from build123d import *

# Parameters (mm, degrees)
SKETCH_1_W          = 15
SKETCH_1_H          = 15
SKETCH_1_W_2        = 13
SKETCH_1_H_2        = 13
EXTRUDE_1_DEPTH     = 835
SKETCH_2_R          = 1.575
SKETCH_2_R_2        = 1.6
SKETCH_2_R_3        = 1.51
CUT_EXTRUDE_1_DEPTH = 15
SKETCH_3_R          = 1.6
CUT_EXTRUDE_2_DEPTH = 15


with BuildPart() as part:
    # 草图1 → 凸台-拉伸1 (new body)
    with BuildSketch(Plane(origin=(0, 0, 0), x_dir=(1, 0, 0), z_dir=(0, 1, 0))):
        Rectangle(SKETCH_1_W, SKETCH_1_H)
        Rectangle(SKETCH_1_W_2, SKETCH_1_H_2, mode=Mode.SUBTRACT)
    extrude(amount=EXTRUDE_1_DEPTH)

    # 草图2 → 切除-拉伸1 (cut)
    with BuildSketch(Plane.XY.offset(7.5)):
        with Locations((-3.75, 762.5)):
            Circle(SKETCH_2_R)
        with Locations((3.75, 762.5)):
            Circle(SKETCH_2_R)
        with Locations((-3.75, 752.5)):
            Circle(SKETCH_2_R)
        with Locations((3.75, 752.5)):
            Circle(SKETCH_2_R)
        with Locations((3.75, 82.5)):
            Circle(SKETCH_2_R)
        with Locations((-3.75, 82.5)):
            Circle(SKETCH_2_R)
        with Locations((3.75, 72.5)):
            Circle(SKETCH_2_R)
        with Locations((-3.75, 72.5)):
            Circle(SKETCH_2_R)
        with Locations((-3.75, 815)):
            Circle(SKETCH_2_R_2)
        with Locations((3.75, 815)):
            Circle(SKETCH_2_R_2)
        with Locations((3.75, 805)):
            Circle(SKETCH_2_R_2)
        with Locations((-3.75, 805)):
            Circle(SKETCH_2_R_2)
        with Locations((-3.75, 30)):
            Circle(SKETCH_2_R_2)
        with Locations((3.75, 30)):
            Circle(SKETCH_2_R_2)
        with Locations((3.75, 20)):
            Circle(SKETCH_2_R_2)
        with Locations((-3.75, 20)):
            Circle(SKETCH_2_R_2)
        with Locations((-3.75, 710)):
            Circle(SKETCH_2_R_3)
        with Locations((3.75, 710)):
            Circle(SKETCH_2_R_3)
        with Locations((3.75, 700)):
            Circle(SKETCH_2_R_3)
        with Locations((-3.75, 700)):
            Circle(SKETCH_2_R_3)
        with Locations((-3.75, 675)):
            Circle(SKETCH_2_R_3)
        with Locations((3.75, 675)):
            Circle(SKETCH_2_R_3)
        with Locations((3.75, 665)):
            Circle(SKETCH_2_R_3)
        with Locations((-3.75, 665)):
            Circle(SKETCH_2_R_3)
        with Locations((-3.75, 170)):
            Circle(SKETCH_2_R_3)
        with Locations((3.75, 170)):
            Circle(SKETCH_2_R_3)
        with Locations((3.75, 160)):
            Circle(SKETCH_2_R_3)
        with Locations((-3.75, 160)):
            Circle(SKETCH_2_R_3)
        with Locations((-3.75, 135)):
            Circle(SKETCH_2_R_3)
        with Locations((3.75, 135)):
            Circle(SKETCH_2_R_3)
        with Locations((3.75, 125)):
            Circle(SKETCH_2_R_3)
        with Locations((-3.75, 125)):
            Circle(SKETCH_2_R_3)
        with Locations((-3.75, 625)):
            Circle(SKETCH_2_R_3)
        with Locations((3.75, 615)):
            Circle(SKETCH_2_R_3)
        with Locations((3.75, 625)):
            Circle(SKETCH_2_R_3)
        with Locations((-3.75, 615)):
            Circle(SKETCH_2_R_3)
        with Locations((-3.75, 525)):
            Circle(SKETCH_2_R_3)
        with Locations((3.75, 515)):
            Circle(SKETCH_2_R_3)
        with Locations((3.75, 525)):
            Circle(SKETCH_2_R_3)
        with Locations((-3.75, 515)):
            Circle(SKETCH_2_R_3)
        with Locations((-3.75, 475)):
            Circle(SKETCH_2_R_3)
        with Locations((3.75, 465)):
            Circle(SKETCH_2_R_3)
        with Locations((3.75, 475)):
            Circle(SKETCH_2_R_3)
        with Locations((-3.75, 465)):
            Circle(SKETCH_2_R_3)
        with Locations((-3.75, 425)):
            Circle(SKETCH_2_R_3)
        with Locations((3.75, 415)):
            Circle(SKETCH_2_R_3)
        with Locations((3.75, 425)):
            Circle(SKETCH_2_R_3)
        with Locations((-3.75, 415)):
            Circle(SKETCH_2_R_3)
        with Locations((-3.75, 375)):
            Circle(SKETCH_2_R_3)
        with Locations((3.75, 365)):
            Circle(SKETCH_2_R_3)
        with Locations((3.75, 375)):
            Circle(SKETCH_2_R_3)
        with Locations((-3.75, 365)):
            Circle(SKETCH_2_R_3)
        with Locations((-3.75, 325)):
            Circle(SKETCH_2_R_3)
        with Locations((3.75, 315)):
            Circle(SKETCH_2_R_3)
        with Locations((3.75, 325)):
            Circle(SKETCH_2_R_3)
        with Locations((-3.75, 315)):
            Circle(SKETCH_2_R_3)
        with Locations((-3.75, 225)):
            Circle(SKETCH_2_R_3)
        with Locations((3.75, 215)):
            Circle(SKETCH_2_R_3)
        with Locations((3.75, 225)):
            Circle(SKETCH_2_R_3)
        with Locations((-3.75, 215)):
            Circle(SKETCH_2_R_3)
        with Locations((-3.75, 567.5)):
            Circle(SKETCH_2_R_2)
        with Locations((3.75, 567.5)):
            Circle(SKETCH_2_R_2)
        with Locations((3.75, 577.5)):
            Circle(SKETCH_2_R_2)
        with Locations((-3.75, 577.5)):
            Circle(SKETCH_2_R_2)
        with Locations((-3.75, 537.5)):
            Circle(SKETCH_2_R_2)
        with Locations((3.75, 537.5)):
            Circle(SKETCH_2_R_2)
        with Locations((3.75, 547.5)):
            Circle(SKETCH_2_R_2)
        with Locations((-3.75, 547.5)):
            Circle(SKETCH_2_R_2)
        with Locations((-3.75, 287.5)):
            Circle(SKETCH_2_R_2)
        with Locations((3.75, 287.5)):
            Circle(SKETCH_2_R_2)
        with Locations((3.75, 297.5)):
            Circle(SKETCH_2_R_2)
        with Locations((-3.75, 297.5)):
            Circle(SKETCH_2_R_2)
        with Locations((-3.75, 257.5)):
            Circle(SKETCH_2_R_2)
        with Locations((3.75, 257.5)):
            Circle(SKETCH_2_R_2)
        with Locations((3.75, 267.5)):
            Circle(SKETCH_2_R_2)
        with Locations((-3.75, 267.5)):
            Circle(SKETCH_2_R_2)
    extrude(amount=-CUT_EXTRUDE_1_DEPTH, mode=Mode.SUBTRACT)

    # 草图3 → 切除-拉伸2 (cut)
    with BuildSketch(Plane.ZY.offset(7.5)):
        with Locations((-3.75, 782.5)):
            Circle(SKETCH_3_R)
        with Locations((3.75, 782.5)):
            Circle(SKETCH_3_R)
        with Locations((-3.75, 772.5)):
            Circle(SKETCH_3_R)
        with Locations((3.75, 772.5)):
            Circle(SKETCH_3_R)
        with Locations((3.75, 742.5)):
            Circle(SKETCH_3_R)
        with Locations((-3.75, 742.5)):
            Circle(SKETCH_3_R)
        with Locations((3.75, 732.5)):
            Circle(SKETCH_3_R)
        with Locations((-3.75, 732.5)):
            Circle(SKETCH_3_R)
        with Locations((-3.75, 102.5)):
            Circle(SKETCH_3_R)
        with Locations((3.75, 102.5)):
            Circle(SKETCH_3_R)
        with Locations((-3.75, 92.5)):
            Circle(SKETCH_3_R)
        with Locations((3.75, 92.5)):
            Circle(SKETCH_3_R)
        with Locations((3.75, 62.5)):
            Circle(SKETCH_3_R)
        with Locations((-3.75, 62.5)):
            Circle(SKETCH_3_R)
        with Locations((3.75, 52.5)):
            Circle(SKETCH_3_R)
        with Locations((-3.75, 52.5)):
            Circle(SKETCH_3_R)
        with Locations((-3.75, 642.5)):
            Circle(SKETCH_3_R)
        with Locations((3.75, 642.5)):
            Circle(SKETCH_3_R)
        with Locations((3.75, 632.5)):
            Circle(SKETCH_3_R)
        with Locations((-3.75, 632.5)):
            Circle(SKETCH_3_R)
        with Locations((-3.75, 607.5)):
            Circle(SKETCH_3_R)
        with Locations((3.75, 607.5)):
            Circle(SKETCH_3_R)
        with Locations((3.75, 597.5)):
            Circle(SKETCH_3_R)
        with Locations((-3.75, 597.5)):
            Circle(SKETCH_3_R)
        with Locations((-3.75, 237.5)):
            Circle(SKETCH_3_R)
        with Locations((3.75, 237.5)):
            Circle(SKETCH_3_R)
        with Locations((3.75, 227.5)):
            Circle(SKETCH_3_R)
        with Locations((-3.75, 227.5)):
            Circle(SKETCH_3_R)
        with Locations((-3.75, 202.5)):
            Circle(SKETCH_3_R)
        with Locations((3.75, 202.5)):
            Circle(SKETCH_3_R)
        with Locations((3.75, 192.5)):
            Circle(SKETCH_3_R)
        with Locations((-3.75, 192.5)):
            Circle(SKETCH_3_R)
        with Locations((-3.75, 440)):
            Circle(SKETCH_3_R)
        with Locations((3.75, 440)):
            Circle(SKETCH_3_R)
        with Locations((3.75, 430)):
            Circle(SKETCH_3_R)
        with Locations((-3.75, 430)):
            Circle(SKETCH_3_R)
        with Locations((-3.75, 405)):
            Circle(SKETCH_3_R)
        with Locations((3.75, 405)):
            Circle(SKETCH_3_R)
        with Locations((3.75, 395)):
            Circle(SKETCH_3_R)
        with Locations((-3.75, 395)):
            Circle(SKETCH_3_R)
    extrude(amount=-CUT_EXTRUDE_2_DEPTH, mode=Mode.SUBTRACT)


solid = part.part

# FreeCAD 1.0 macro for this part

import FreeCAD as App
import Part
import Sketcher

V = App.Vector

doc = App.newDocument("Part")
body = doc.addObject("PartDesign::Body", "Body")

sketch1 = doc.addObject("Sketcher::SketchObject", "Sketch")
body.addObject(sketch1)
sketch1.AttachmentSupport = (doc.XZ_Plane, [""])
sketch1.MapMode = "FlatFace"
sketch1.addGeometry([
    Part.LineSegment(V(-8, -8, 0), V(-8, 8, 0)),
    Part.LineSegment(V(-8, 8, 0), V(8, 8, 0)),
    Part.LineSegment(V(8, 8, 0), V(8, -8, 0)),
    Part.LineSegment(V(8, -8, 0), V(-8, -8, 0)),
    Part.LineSegment(V(6, 6, 0), V(-6, 6, 0)),
    Part.LineSegment(V(-6, 6, 0), V(-6, -6, 0)),
    Part.LineSegment(V(-6, -6, 0), V(6, -6, 0)),
    Part.LineSegment(V(6, -6, 0), V(6, 6, 0)),
], False)
sketch1.addConstraint([
    Sketcher.Constraint("Coincident", 0, 2, 1, 1),
    Sketcher.Constraint("Coincident", 1, 2, 2, 1),
    Sketcher.Constraint("Coincident", 2, 2, 3, 1),
    Sketcher.Constraint("Coincident", 3, 2, 0, 1),
    Sketcher.Constraint("Coincident", 4, 2, 5, 1),
    Sketcher.Constraint("Coincident", 5, 2, 6, 1),
    Sketcher.Constraint("Coincident", 6, 2, 7, 1),
    Sketcher.Constraint("Coincident", 7, 2, 4, 1),
    Sketcher.Constraint("Vertical", 0),
    Sketcher.Constraint("Horizontal", 1),
    Sketcher.Constraint("Vertical", 2),
    Sketcher.Constraint("Horizontal", 3),
    Sketcher.Constraint("Horizontal", 4),
    Sketcher.Constraint("Vertical", 5),
    Sketcher.Constraint("Horizontal", 6),
    Sketcher.Constraint("Vertical", 7),
    Sketcher.Constraint("Symmetric", 0, 2, 2, 2, -1, 1),
    Sketcher.Constraint("Symmetric", 4, 2, 6, 2, -1, 1),
    Sketcher.Constraint("Equal", 3, 0),
    Sketcher.Constraint("Equal", 6, 5),
    Sketcher.Constraint("DistanceX", 1, 1, 1, 2, 15.0),
    Sketcher.Constraint("DistanceX", 4, 2, 4, 1, 13.0),
])
pad1 = doc.addObject("PartDesign::Pad", "Pad")
body.addObject(pad1)
pad1.Profile = sketch1
pad1.Length = 835
pad1.Reversed = True

sketch2 = doc.addObject("Sketcher::SketchObject", "Sketch001")
body.addObject(sketch2)
sketch2.AttachmentSupport = (doc.XY_Plane, [""])
sketch2.MapMode = "FlatFace"
sketch2.AttachmentOffset = App.Placement(V(0, 0, 7.5), App.Rotation())
sketch2.addGeometry([
    Part.Circle(V(-3.8, 762.5, 0), V(0, 0, 1), 1.6),
    Part.Circle(V(3.8, 762.5, 0), V(0, 0, 1), 1.6),
    Part.Circle(V(-3.8, 752.5, 0), V(0, 0, 1), 1.6),
    Part.Circle(V(3.8, 752.5, 0), V(0, 0, 1), 1.6),
    Part.Circle(V(3.8, 82.5, 0), V(0, 0, 1), 1.6),
    Part.Circle(V(-3.8, 82.5, 0), V(0, 0, 1), 1.6),
    Part.Circle(V(3.8, 72.5, 0), V(0, 0, 1), 1.6),
    Part.Circle(V(-3.8, 72.5, 0), V(0, 0, 1), 1.6),
    Part.Circle(V(-3.8, 815, 0), V(0, 0, 1), 1.6),
    Part.Circle(V(3.8, 815, 0), V(0, 0, 1), 1.6),
    Part.Circle(V(3.8, 805, 0), V(0, 0, 1), 1.6),
    Part.Circle(V(-3.8, 805, 0), V(0, 0, 1), 1.6),
    Part.Circle(V(-3.8, 30, 0), V(0, 0, 1), 1.6),
    Part.Circle(V(3.8, 30, 0), V(0, 0, 1), 1.6),
    Part.Circle(V(3.8, 20, 0), V(0, 0, 1), 1.6),
    Part.Circle(V(-3.8, 20, 0), V(0, 0, 1), 1.6),
    Part.Circle(V(-3.8, 710, 0), V(0, 0, 1), 1.5),
    Part.Circle(V(3.8, 710, 0), V(0, 0, 1), 1.5),
    Part.Circle(V(3.8, 700, 0), V(0, 0, 1), 1.5),
    Part.Circle(V(-3.8, 700, 0), V(0, 0, 1), 1.5),
    Part.Circle(V(-3.8, 675, 0), V(0, 0, 1), 1.5),
    Part.Circle(V(3.8, 675, 0), V(0, 0, 1), 1.5),
    Part.Circle(V(3.8, 665, 0), V(0, 0, 1), 1.5),
    Part.Circle(V(-3.8, 665, 0), V(0, 0, 1), 1.5),
    Part.Circle(V(-3.8, 170, 0), V(0, 0, 1), 1.5),
    Part.Circle(V(3.8, 170, 0), V(0, 0, 1), 1.5),
    Part.Circle(V(3.8, 160, 0), V(0, 0, 1), 1.5),
    Part.Circle(V(-3.8, 160, 0), V(0, 0, 1), 1.5),
    Part.Circle(V(-3.8, 135, 0), V(0, 0, 1), 1.5),
    Part.Circle(V(3.8, 135, 0), V(0, 0, 1), 1.5),
    Part.Circle(V(3.8, 125, 0), V(0, 0, 1), 1.5),
    Part.Circle(V(-3.8, 125, 0), V(0, 0, 1), 1.5),
    Part.Circle(V(-3.8, 625, 0), V(0, 0, 1), 1.5),
    Part.Circle(V(3.8, 615, 0), V(0, 0, 1), 1.5),
    Part.Circle(V(3.8, 625, 0), V(0, 0, 1), 1.5),
    Part.Circle(V(-3.8, 615, 0), V(0, 0, 1), 1.5),
    Part.Circle(V(-3.8, 525, 0), V(0, 0, 1), 1.5),
    Part.Circle(V(3.8, 515, 0), V(0, 0, 1), 1.5),
    Part.Circle(V(3.8, 525, 0), V(0, 0, 1), 1.5),
    Part.Circle(V(-3.8, 515, 0), V(0, 0, 1), 1.5),
    Part.Circle(V(-3.8, 475, 0), V(0, 0, 1), 1.5),
    Part.Circle(V(3.8, 465, 0), V(0, 0, 1), 1.5),
    Part.Circle(V(3.8, 475, 0), V(0, 0, 1), 1.5),
    Part.Circle(V(-3.8, 465, 0), V(0, 0, 1), 1.5),
    Part.Circle(V(-3.8, 425, 0), V(0, 0, 1), 1.5),
    Part.Circle(V(3.8, 415, 0), V(0, 0, 1), 1.5),
    Part.Circle(V(3.8, 425, 0), V(0, 0, 1), 1.5),
    Part.Circle(V(-3.8, 415, 0), V(0, 0, 1), 1.5),
    Part.Circle(V(-3.8, 375, 0), V(0, 0, 1), 1.5),
    Part.Circle(V(3.8, 365, 0), V(0, 0, 1), 1.5),
    Part.Circle(V(3.8, 375, 0), V(0, 0, 1), 1.5),
    Part.Circle(V(-3.8, 365, 0), V(0, 0, 1), 1.5),
    Part.Circle(V(-3.8, 325, 0), V(0, 0, 1), 1.5),
    Part.Circle(V(3.8, 315, 0), V(0, 0, 1), 1.5),
    Part.Circle(V(3.8, 325, 0), V(0, 0, 1), 1.5),
    Part.Circle(V(-3.8, 315, 0), V(0, 0, 1), 1.5),
    Part.Circle(V(-3.8, 225, 0), V(0, 0, 1), 1.5),
    Part.Circle(V(3.8, 215, 0), V(0, 0, 1), 1.5),
    Part.Circle(V(3.8, 225, 0), V(0, 0, 1), 1.5),
    Part.Circle(V(-3.8, 215, 0), V(0, 0, 1), 1.5),
    Part.Circle(V(-3.8, 567.5, 0), V(0, 0, 1), 1.6),
    Part.Circle(V(3.8, 567.5, 0), V(0, 0, 1), 1.6),
    Part.Circle(V(3.8, 577.5, 0), V(0, 0, 1), 1.6),
    Part.Circle(V(-3.8, 577.5, 0), V(0, 0, 1), 1.6),
    Part.Circle(V(-3.8, 537.5, 0), V(0, 0, 1), 1.6),
    Part.Circle(V(3.8, 537.5, 0), V(0, 0, 1), 1.6),
    Part.Circle(V(3.8, 547.5, 0), V(0, 0, 1), 1.6),
    Part.Circle(V(-3.8, 547.5, 0), V(0, 0, 1), 1.6),
    Part.Circle(V(-3.8, 287.5, 0), V(0, 0, 1), 1.6),
    Part.Circle(V(3.8, 287.5, 0), V(0, 0, 1), 1.6),
    Part.Circle(V(3.8, 297.5, 0), V(0, 0, 1), 1.6),
    Part.Circle(V(-3.8, 297.5, 0), V(0, 0, 1), 1.6),
    Part.Circle(V(-3.8, 257.5, 0), V(0, 0, 1), 1.6),
    Part.Circle(V(3.8, 257.5, 0), V(0, 0, 1), 1.6),
    Part.Circle(V(3.8, 267.5, 0), V(0, 0, 1), 1.6),
    Part.Circle(V(-3.8, 267.5, 0), V(0, 0, 1), 1.6),
], False)
sketch2.addConstraint([
    Sketcher.Constraint("Equal", 0, 1),
    Sketcher.Constraint("Equal", 1, 2),
    Sketcher.Constraint("Equal", 2, 3),
    Sketcher.Constraint("Equal", 3, 4),
    Sketcher.Constraint("Equal", 4, 5),
    Sketcher.Constraint("Equal", 5, 6),
    Sketcher.Constraint("Equal", 6, 7),
    Sketcher.Constraint("Equal", 8, 9),
    Sketcher.Constraint("Equal", 9, 10),
    Sketcher.Constraint("Equal", 10, 11),
    Sketcher.Constraint("Equal", 11, 12),
    Sketcher.Constraint("Equal", 12, 13),
    Sketcher.Constraint("Equal", 13, 14),
    Sketcher.Constraint("Equal", 14, 15),
    Sketcher.Constraint("Equal", 16, 17),
    Sketcher.Constraint("Equal", 17, 18),
    Sketcher.Constraint("Equal", 18, 19),
    Sketcher.Constraint("Equal", 19, 20),
    Sketcher.Constraint("Equal", 20, 21),
    Sketcher.Constraint("Equal", 21, 22),
    Sketcher.Constraint("Equal", 22, 23),
    Sketcher.Constraint("Equal", 23, 24),
    Sketcher.Constraint("Equal", 24, 25),
    Sketcher.Constraint("Equal", 25, 26),
    Sketcher.Constraint("Equal", 26, 27),
    Sketcher.Constraint("Equal", 27, 28),
    Sketcher.Constraint("Equal", 28, 29),
    Sketcher.Constraint("Equal", 29, 30),
    Sketcher.Constraint("Equal", 30, 31),
    Sketcher.Constraint("Equal", 31, 32),
    Sketcher.Constraint("Equal", 32, 33),
    Sketcher.Constraint("Equal", 33, 34),
    Sketcher.Constraint("Equal", 34, 35),
    Sketcher.Constraint("Equal", 35, 36),
    Sketcher.Constraint("Equal", 36, 37),
    Sketcher.Constraint("Equal", 37, 38),
    Sketcher.Constraint("Equal", 38, 39),
    Sketcher.Constraint("Equal", 39, 40),
    Sketcher.Constraint("Equal", 40, 41),
    Sketcher.Constraint("Equal", 41, 42),
    Sketcher.Constraint("Equal", 42, 43),
    Sketcher.Constraint("Equal", 43, 44),
    Sketcher.Constraint("Equal", 44, 45),
    Sketcher.Constraint("Equal", 45, 46),
    Sketcher.Constraint("Equal", 46, 47),
    Sketcher.Constraint("Equal", 47, 48),
    Sketcher.Constraint("Equal", 48, 49),
    Sketcher.Constraint("Equal", 49, 50),
    Sketcher.Constraint("Equal", 50, 51),
    Sketcher.Constraint("Equal", 51, 52),
    Sketcher.Constraint("Equal", 52, 53),
    Sketcher.Constraint("Equal", 53, 54),
    Sketcher.Constraint("Equal", 54, 55),
    Sketcher.Constraint("Equal", 55, 56),
    Sketcher.Constraint("Equal", 56, 57),
    Sketcher.Constraint("Equal", 57, 58),
    Sketcher.Constraint("Equal", 58, 59),
    Sketcher.Constraint("Equal", 15, 60),
    Sketcher.Constraint("Equal", 60, 61),
    Sketcher.Constraint("Equal", 61, 62),
    Sketcher.Constraint("Equal", 62, 63),
    Sketcher.Constraint("Equal", 63, 64),
    Sketcher.Constraint("Equal", 64, 65),
    Sketcher.Constraint("Equal", 65, 66),
    Sketcher.Constraint("Equal", 66, 67),
    Sketcher.Constraint("Equal", 67, 68),
    Sketcher.Constraint("Equal", 68, 69),
    Sketcher.Constraint("Equal", 69, 70),
    Sketcher.Constraint("Equal", 70, 71),
    Sketcher.Constraint("Equal", 71, 72),
    Sketcher.Constraint("Equal", 72, 73),
    Sketcher.Constraint("Equal", 73, 74),
    Sketcher.Constraint("Equal", 74, 75),
    Sketcher.Constraint("Symmetric", 0, 3, 1, 3, -2),
    Sketcher.Constraint("Symmetric", 2, 3, 3, 3, -2),
    Sketcher.Constraint("Symmetric", 4, 3, 5, 3, -2),
    Sketcher.Constraint("Symmetric", 6, 3, 7, 3, -2),
    Sketcher.Constraint("Symmetric", 8, 3, 9, 3, -2),
    Sketcher.Constraint("Symmetric", 10, 3, 11, 3, -2),
    Sketcher.Constraint("Symmetric", 12, 3, 13, 3, -2),
    Sketcher.Constraint("Symmetric", 14, 3, 15, 3, -2),
    Sketcher.Constraint("Symmetric", 16, 3, 17, 3, -2),
    Sketcher.Constraint("Symmetric", 18, 3, 19, 3, -2),
    Sketcher.Constraint("Symmetric", 20, 3, 21, 3, -2),
    Sketcher.Constraint("Symmetric", 22, 3, 23, 3, -2),
    Sketcher.Constraint("Symmetric", 24, 3, 25, 3, -2),
    Sketcher.Constraint("Symmetric", 26, 3, 27, 3, -2),
    Sketcher.Constraint("Symmetric", 28, 3, 29, 3, -2),
    Sketcher.Constraint("Symmetric", 30, 3, 31, 3, -2),
    Sketcher.Constraint("Symmetric", 32, 3, 34, 3, -2),
    Sketcher.Constraint("Symmetric", 33, 3, 35, 3, -2),
    Sketcher.Constraint("Symmetric", 36, 3, 38, 3, -2),
    Sketcher.Constraint("Symmetric", 37, 3, 39, 3, -2),
    Sketcher.Constraint("Symmetric", 40, 3, 42, 3, -2),
    Sketcher.Constraint("Symmetric", 41, 3, 43, 3, -2),
    Sketcher.Constraint("Symmetric", 44, 3, 46, 3, -2),
    Sketcher.Constraint("Symmetric", 45, 3, 47, 3, -2),
    Sketcher.Constraint("Symmetric", 48, 3, 50, 3, -2),
    Sketcher.Constraint("Symmetric", 49, 3, 51, 3, -2),
    Sketcher.Constraint("Symmetric", 52, 3, 54, 3, -2),
    Sketcher.Constraint("Symmetric", 53, 3, 55, 3, -2),
    Sketcher.Constraint("Symmetric", 56, 3, 58, 3, -2),
    Sketcher.Constraint("Symmetric", 57, 3, 59, 3, -2),
    Sketcher.Constraint("Symmetric", 60, 3, 61, 3, -2),
    Sketcher.Constraint("Symmetric", 62, 3, 63, 3, -2),
    Sketcher.Constraint("Symmetric", 64, 3, 65, 3, -2),
    Sketcher.Constraint("Symmetric", 66, 3, 67, 3, -2),
    Sketcher.Constraint("Symmetric", 68, 3, 69, 3, -2),
    Sketcher.Constraint("Symmetric", 70, 3, 71, 3, -2),
    Sketcher.Constraint("Symmetric", 72, 3, 73, 3, -2),
    Sketcher.Constraint("Symmetric", 74, 3, 75, 3, -2),
    Sketcher.Constraint("Vertical", 0, 3, 2, 3),
    Sketcher.Constraint("Vertical", 3, 3, 4, 3),
    Sketcher.Constraint("Vertical", 4, 3, 6, 3),
    Sketcher.Constraint("Vertical", 7, 3, 8, 3),
    Sketcher.Constraint("Vertical", 9, 3, 10, 3),
    Sketcher.Constraint("Vertical", 11, 3, 12, 3),
    Sketcher.Constraint("Vertical", 13, 3, 14, 3),
    Sketcher.Constraint("Vertical", 15, 3, 16, 3),
    Sketcher.Constraint("Vertical", 17, 3, 18, 3),
    Sketcher.Constraint("Vertical", 19, 3, 20, 3),
    Sketcher.Constraint("Vertical", 21, 3, 22, 3),
    Sketcher.Constraint("Vertical", 23, 3, 24, 3),
    Sketcher.Constraint("Vertical", 25, 3, 26, 3),
    Sketcher.Constraint("Vertical", 27, 3, 28, 3),
    Sketcher.Constraint("Vertical", 29, 3, 30, 3),
    Sketcher.Constraint("Vertical", 31, 3, 32, 3),
    Sketcher.Constraint("Vertical", 30, 3, 33, 3),
    Sketcher.Constraint("Vertical", 35, 3, 36, 3),
    Sketcher.Constraint("Vertical", 34, 3, 37, 3),
    Sketcher.Constraint("Vertical", 39, 3, 40, 3),
    Sketcher.Constraint("Vertical", 38, 3, 41, 3),
    Sketcher.Constraint("Vertical", 43, 3, 44, 3),
    Sketcher.Constraint("Vertical", 42, 3, 45, 3),
    Sketcher.Constraint("Vertical", 47, 3, 48, 3),
    Sketcher.Constraint("Vertical", 46, 3, 49, 3),
    Sketcher.Constraint("Vertical", 51, 3, 52, 3),
    Sketcher.Constraint("Vertical", 50, 3, 53, 3),
    Sketcher.Constraint("Vertical", 55, 3, 56, 3),
    Sketcher.Constraint("Vertical", 54, 3, 57, 3),
    Sketcher.Constraint("Vertical", 59, 3, 60, 3),
    Sketcher.Constraint("Vertical", 61, 3, 62, 3),
    Sketcher.Constraint("Vertical", 63, 3, 64, 3),
    Sketcher.Constraint("Vertical", 65, 3, 66, 3),
    Sketcher.Constraint("Vertical", 67, 3, 68, 3),
    Sketcher.Constraint("Vertical", 69, 3, 70, 3),
    Sketcher.Constraint("Vertical", 71, 3, 72, 3),
    Sketcher.Constraint("Vertical", 73, 3, 74, 3),
    Sketcher.Constraint("Diameter", 8, 3.2),
    Sketcher.Constraint("Diameter", 0, 3.15),
    Sketcher.Constraint("Diameter", 16, 3.02),
    Sketcher.Constraint("DistanceY", -1, 1, 8, 3, 815.0),
    Sketcher.Constraint("DistanceY", -1, 1, 10, 3, 805.0),
    Sketcher.Constraint("DistanceY", -1, 1, 12, 3, 30.0),
    Sketcher.Constraint("DistanceY", -1, 1, 14, 3, 20.0),
    Sketcher.Constraint("DistanceY", -1, 1, 16, 3, 710.0),
    Sketcher.Constraint("DistanceY", -1, 1, 18, 3, 700.0),
    Sketcher.Constraint("DistanceY", -1, 1, 20, 3, 675.0),
    Sketcher.Constraint("DistanceY", -1, 1, 22, 3, 665.0),
    Sketcher.Constraint("DistanceY", -1, 1, 24, 3, 170.0),
    Sketcher.Constraint("DistanceY", -1, 1, 26, 3, 160.0),
    Sketcher.Constraint("DistanceY", -1, 1, 28, 3, 135.0),
    Sketcher.Constraint("DistanceY", -1, 1, 30, 3, 125.0),
    Sketcher.Constraint("DistanceY", -1, 1, 32, 3, 625.0),
    Sketcher.Constraint("DistanceY", -1, 1, 33, 3, 615.0),
    Sketcher.Constraint("DistanceY", -1, 1, 36, 3, 525.0),
    Sketcher.Constraint("DistanceY", -1, 1, 37, 3, 515.0),
    Sketcher.Constraint("DistanceY", -1, 1, 40, 3, 475.0),
    Sketcher.Constraint("DistanceY", -1, 1, 41, 3, 465.0),
    Sketcher.Constraint("DistanceY", -1, 1, 44, 3, 425.0),
    Sketcher.Constraint("DistanceY", -1, 1, 45, 3, 415.0),
    Sketcher.Constraint("DistanceY", -1, 1, 48, 3, 375.0),
    Sketcher.Constraint("DistanceY", -1, 1, 49, 3, 365.0),
    Sketcher.Constraint("DistanceY", -1, 1, 52, 3, 325.0),
    Sketcher.Constraint("DistanceY", -1, 1, 53, 3, 315.0),
    Sketcher.Constraint("DistanceY", -1, 1, 56, 3, 225.0),
    Sketcher.Constraint("DistanceY", -1, 1, 57, 3, 215.0),
    Sketcher.Constraint("DistanceY", -1, 1, 0, 3, 762.5),
    Sketcher.Constraint("DistanceY", -1, 1, 2, 3, 752.5),
    Sketcher.Constraint("DistanceY", -1, 1, 4, 3, 82.5),
    Sketcher.Constraint("DistanceY", -1, 1, 6, 3, 72.5),
    Sketcher.Constraint("DistanceY", -1, 1, 60, 3, 567.5),
    Sketcher.Constraint("DistanceY", -1, 1, 62, 3, 577.5),
    Sketcher.Constraint("DistanceY", -1, 1, 64, 3, 537.5),
    Sketcher.Constraint("DistanceY", -1, 1, 66, 3, 547.5),
    Sketcher.Constraint("DistanceY", -1, 1, 68, 3, 287.5),
    Sketcher.Constraint("DistanceY", -1, 1, 70, 3, 297.5),
    Sketcher.Constraint("DistanceY", -1, 1, 72, 3, 257.5),
    Sketcher.Constraint("DistanceY", -1, 1, 74, 3, 267.5),
    Sketcher.Constraint("DistanceX", 0, 3, -1, 1, 3.75),
])
pocket1 = doc.addObject("PartDesign::Pocket", "Pocket")
body.addObject(pocket1)
pocket1.Profile = sketch2
pocket1.Length = 15

sketch3 = doc.addObject("Sketcher::SketchObject", "Sketch002")
body.addObject(sketch3)
sketch3.AttachmentSupport = (doc.YZ_Plane, [""])
sketch3.MapMode = "FlatFace"
sketch3.AttachmentOffset = App.Placement(V(0, 0, -7.5), App.Rotation())
sketch3.addGeometry([
    Part.Circle(V(782.5, -3.8, 0), V(0, 0, 1), 1.6),
    Part.Circle(V(782.5, 3.8, 0), V(0, 0, 1), 1.6),
    Part.Circle(V(772.5, -3.8, 0), V(0, 0, 1), 1.6),
    Part.Circle(V(772.5, 3.8, 0), V(0, 0, 1), 1.6),
    Part.Circle(V(742.5, 3.8, 0), V(0, 0, 1), 1.6),
    Part.Circle(V(742.5, -3.8, 0), V(0, 0, 1), 1.6),
    Part.Circle(V(732.5, 3.8, 0), V(0, 0, 1), 1.6),
    Part.Circle(V(732.5, -3.8, 0), V(0, 0, 1), 1.6),
    Part.Circle(V(102.5, -3.8, 0), V(0, 0, 1), 1.6),
    Part.Circle(V(102.5, 3.8, 0), V(0, 0, 1), 1.6),
    Part.Circle(V(92.5, -3.8, 0), V(0, 0, 1), 1.6),
    Part.Circle(V(92.5, 3.8, 0), V(0, 0, 1), 1.6),
    Part.Circle(V(62.5, 3.8, 0), V(0, 0, 1), 1.6),
    Part.Circle(V(62.5, -3.8, 0), V(0, 0, 1), 1.6),
    Part.Circle(V(52.5, 3.8, 0), V(0, 0, 1), 1.6),
    Part.Circle(V(52.5, -3.8, 0), V(0, 0, 1), 1.6),
    Part.Circle(V(642.5, -3.8, 0), V(0, 0, 1), 1.6),
    Part.Circle(V(642.5, 3.8, 0), V(0, 0, 1), 1.6),
    Part.Circle(V(632.5, 3.8, 0), V(0, 0, 1), 1.6),
    Part.Circle(V(632.5, -3.8, 0), V(0, 0, 1), 1.6),
    Part.Circle(V(607.5, -3.8, 0), V(0, 0, 1), 1.6),
    Part.Circle(V(607.5, 3.8, 0), V(0, 0, 1), 1.6),
    Part.Circle(V(597.5, 3.8, 0), V(0, 0, 1), 1.6),
    Part.Circle(V(597.5, -3.8, 0), V(0, 0, 1), 1.6),
    Part.Circle(V(237.5, -3.8, 0), V(0, 0, 1), 1.6),
    Part.Circle(V(237.5, 3.8, 0), V(0, 0, 1), 1.6),
    Part.Circle(V(227.5, 3.8, 0), V(0, 0, 1), 1.6),
    Part.Circle(V(227.5, -3.8, 0), V(0, 0, 1), 1.6),
    Part.Circle(V(202.5, -3.8, 0), V(0, 0, 1), 1.6),
    Part.Circle(V(202.5, 3.8, 0), V(0, 0, 1), 1.6),
    Part.Circle(V(192.5, 3.8, 0), V(0, 0, 1), 1.6),
    Part.Circle(V(192.5, -3.8, 0), V(0, 0, 1), 1.6),
    Part.Circle(V(440, -3.8, 0), V(0, 0, 1), 1.6),
    Part.Circle(V(440, 3.8, 0), V(0, 0, 1), 1.6),
    Part.Circle(V(430, 3.8, 0), V(0, 0, 1), 1.6),
    Part.Circle(V(430, -3.8, 0), V(0, 0, 1), 1.6),
    Part.Circle(V(405, -3.8, 0), V(0, 0, 1), 1.6),
    Part.Circle(V(405, 3.8, 0), V(0, 0, 1), 1.6),
    Part.Circle(V(395, 3.8, 0), V(0, 0, 1), 1.6),
    Part.Circle(V(395, -3.8, 0), V(0, 0, 1), 1.6),
], False)
sketch3.addConstraint([
    Sketcher.Constraint("Equal", 0, 1),
    Sketcher.Constraint("Equal", 1, 2),
    Sketcher.Constraint("Equal", 2, 3),
    Sketcher.Constraint("Equal", 3, 4),
    Sketcher.Constraint("Equal", 4, 5),
    Sketcher.Constraint("Equal", 5, 6),
    Sketcher.Constraint("Equal", 6, 7),
    Sketcher.Constraint("Equal", 7, 8),
    Sketcher.Constraint("Equal", 8, 9),
    Sketcher.Constraint("Equal", 9, 10),
    Sketcher.Constraint("Equal", 10, 11),
    Sketcher.Constraint("Equal", 11, 12),
    Sketcher.Constraint("Equal", 12, 13),
    Sketcher.Constraint("Equal", 13, 14),
    Sketcher.Constraint("Equal", 14, 15),
    Sketcher.Constraint("Equal", 15, 16),
    Sketcher.Constraint("Equal", 16, 17),
    Sketcher.Constraint("Equal", 17, 18),
    Sketcher.Constraint("Equal", 18, 19),
    Sketcher.Constraint("Equal", 19, 20),
    Sketcher.Constraint("Equal", 20, 21),
    Sketcher.Constraint("Equal", 21, 22),
    Sketcher.Constraint("Equal", 22, 23),
    Sketcher.Constraint("Equal", 23, 24),
    Sketcher.Constraint("Equal", 24, 25),
    Sketcher.Constraint("Equal", 25, 26),
    Sketcher.Constraint("Equal", 26, 27),
    Sketcher.Constraint("Equal", 27, 28),
    Sketcher.Constraint("Equal", 28, 29),
    Sketcher.Constraint("Equal", 29, 30),
    Sketcher.Constraint("Equal", 30, 31),
    Sketcher.Constraint("Equal", 31, 32),
    Sketcher.Constraint("Equal", 32, 33),
    Sketcher.Constraint("Equal", 33, 34),
    Sketcher.Constraint("Equal", 34, 35),
    Sketcher.Constraint("Equal", 35, 36),
    Sketcher.Constraint("Equal", 36, 37),
    Sketcher.Constraint("Equal", 37, 38),
    Sketcher.Constraint("Equal", 38, 39),
    Sketcher.Constraint("Symmetric", 0, 3, 1, 3, -1),
    Sketcher.Constraint("Symmetric", 2, 3, 3, 3, -1),
    Sketcher.Constraint("Symmetric", 4, 3, 5, 3, -1),
    Sketcher.Constraint("Symmetric", 6, 3, 7, 3, -1),
    Sketcher.Constraint("Symmetric", 8, 3, 9, 3, -1),
    Sketcher.Constraint("Symmetric", 10, 3, 11, 3, -1),
    Sketcher.Constraint("Symmetric", 12, 3, 13, 3, -1),
    Sketcher.Constraint("Symmetric", 14, 3, 15, 3, -1),
    Sketcher.Constraint("Symmetric", 16, 3, 17, 3, -1),
    Sketcher.Constraint("Symmetric", 18, 3, 19, 3, -1),
    Sketcher.Constraint("Symmetric", 20, 3, 21, 3, -1),
    Sketcher.Constraint("Symmetric", 22, 3, 23, 3, -1),
    Sketcher.Constraint("Symmetric", 24, 3, 25, 3, -1),
    Sketcher.Constraint("Symmetric", 26, 3, 27, 3, -1),
    Sketcher.Constraint("Symmetric", 28, 3, 29, 3, -1),
    Sketcher.Constraint("Symmetric", 30, 3, 31, 3, -1),
    Sketcher.Constraint("Symmetric", 32, 3, 33, 3, -1),
    Sketcher.Constraint("Symmetric", 34, 3, 35, 3, -1),
    Sketcher.Constraint("Symmetric", 36, 3, 37, 3, -1),
    Sketcher.Constraint("Symmetric", 38, 3, 39, 3, -1),
    Sketcher.Constraint("Horizontal", 0, 3, 2, 3),
    Sketcher.Constraint("Horizontal", 3, 3, 4, 3),
    Sketcher.Constraint("Horizontal", 4, 3, 6, 3),
    Sketcher.Constraint("Horizontal", 7, 3, 8, 3),
    Sketcher.Constraint("Horizontal", 8, 3, 10, 3),
    Sketcher.Constraint("Horizontal", 11, 3, 12, 3),
    Sketcher.Constraint("Horizontal", 12, 3, 14, 3),
    Sketcher.Constraint("Horizontal", 15, 3, 16, 3),
    Sketcher.Constraint("Horizontal", 17, 3, 18, 3),
    Sketcher.Constraint("Horizontal", 19, 3, 20, 3),
    Sketcher.Constraint("Horizontal", 21, 3, 22, 3),
    Sketcher.Constraint("Horizontal", 23, 3, 24, 3),
    Sketcher.Constraint("Horizontal", 25, 3, 26, 3),
    Sketcher.Constraint("Horizontal", 27, 3, 28, 3),
    Sketcher.Constraint("Horizontal", 29, 3, 30, 3),
    Sketcher.Constraint("Horizontal", 31, 3, 32, 3),
    Sketcher.Constraint("Horizontal", 33, 3, 34, 3),
    Sketcher.Constraint("Horizontal", 35, 3, 36, 3),
    Sketcher.Constraint("Horizontal", 37, 3, 38, 3),
    Sketcher.Constraint("Diameter", 0, 3.2),
    Sketcher.Constraint("DistanceX", -1, 1, 32, 3, 440.0),
    Sketcher.Constraint("DistanceX", -1, 1, 34, 3, 430.0),
    Sketcher.Constraint("DistanceX", -1, 1, 36, 3, 405.0),
    Sketcher.Constraint("DistanceX", -1, 1, 38, 3, 395.0),
    Sketcher.Constraint("DistanceX", 2, 3, 0, 3, 10.0),
    Sketcher.Constraint("DistanceX", 4, 3, 3, 3, 30.0),
    Sketcher.Constraint("DistanceX", 6, 3, 4, 3, 10.0),
    Sketcher.Constraint("DistanceX", 8, 3, 7, 3, 630.0),
    Sketcher.Constraint("DistanceX", 10, 3, 8, 3, 10.0),
    Sketcher.Constraint("DistanceX", 12, 3, 11, 3, 30.0),
    Sketcher.Constraint("DistanceX", 14, 3, 12, 3, 10.0),
    Sketcher.Constraint("DistanceX", 16, 3, 7, 3, 90.0),
    Sketcher.Constraint("DistanceX", 18, 3, 17, 3, 10.0),
    Sketcher.Constraint("DistanceX", 20, 3, 19, 3, 25.0),
    Sketcher.Constraint("DistanceX", 22, 3, 21, 3, 10.0),
    Sketcher.Constraint("DistanceX", 8, 3, 24, 3, 135.0),
    Sketcher.Constraint("DistanceX", 26, 3, 25, 3, 10.0),
    Sketcher.Constraint("DistanceX", 28, 3, 27, 3, 25.0),
    Sketcher.Constraint("DistanceX", 30, 3, 29, 3, 10.0),
    Sketcher.Constraint("DistanceX", -1, 1, 0, 3, 782.5),
    Sketcher.Constraint("DistanceY", 0, 3, 1, 3, 7.5),
])
pocket2 = doc.addObject("PartDesign::Pocket", "Pocket001")
body.addObject(pocket2)
pocket2.Profile = sketch3
pocket2.Length = 15
pocket2.Reversed = True

doc.recompute()
